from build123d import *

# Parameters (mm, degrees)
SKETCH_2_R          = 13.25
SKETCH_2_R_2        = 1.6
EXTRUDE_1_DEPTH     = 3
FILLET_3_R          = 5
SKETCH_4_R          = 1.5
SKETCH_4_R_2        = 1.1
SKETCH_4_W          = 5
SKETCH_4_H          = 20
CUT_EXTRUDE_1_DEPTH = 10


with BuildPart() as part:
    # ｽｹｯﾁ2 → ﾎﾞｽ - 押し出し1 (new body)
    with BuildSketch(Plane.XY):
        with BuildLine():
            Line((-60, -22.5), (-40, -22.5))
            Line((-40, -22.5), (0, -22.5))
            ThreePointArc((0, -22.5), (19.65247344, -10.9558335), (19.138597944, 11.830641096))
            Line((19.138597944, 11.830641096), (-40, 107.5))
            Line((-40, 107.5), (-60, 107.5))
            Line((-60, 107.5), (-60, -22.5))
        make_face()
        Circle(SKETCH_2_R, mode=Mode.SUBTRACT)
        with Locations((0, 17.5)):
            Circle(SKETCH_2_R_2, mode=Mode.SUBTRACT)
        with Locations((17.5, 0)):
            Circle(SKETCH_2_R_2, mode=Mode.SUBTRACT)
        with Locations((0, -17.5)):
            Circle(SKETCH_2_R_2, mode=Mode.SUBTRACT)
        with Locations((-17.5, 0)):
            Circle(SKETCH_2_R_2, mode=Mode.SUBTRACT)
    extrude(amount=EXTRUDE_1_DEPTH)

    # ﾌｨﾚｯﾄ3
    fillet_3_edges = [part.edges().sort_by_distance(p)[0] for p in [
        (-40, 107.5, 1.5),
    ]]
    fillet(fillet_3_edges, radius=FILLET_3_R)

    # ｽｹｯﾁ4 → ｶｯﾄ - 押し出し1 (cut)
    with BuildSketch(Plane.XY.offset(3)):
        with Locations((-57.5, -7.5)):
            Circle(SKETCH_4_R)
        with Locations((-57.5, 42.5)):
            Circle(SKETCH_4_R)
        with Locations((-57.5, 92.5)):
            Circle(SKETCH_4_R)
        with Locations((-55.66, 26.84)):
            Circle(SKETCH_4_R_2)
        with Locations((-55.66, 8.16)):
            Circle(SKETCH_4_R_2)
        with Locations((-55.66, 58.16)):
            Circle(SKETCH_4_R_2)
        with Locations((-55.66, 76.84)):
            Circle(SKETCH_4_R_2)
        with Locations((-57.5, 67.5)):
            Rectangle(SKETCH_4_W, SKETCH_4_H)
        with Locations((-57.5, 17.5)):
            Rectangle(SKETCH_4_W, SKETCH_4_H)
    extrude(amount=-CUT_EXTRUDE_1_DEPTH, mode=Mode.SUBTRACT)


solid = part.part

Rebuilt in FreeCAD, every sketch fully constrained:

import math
import FreeCAD as App
import Part
import Sketcher

V = App.Vector


def edges_at(feature, points):
    """Names of the edges that pass closest to the given points."""
    edges = feature.Shape.Edges
    near = lambda p: min(range(len(edges)), key=lambda i: edges[i].distToShape(Part.Vertex(*p))[0])
    return sorted({f"Edge{near(p) + 1}" for p in points})

doc = App.newDocument("Part")
body = doc.addObject("PartDesign::Body", "Body")

sketch1 = doc.addObject("Sketcher::SketchObject", "Sketch")
body.addObject(sketch1)
sketch1.AttachmentSupport = (doc.XY_Plane, [""])
sketch1.MapMode = "FlatFace"
sketch1.addGeometry([
    Part.LineSegment(V(-60, -22.5, 0), V(0, -22.5, 0)),
    Part.ArcOfCircle(Part.Circle(V(0, 0, 0), V(0, 0, 1), 22.5), math.radians(-90), math.radians(31.722537)),
    Part.LineSegment(V(19.138598, 11.830641, 0), V(-40, 107.5, 0)),
    Part.LineSegment(V(-40, 107.5, 0), V(-60, 107.5, 0)),
    Part.LineSegment(V(-60, 107.5, 0), V(-60, -22.5, 0)),
    Part.Circle(V(0, -17.5, 0), V(0, 0, 1), 1.6),
    Part.Circle(V(-17.5, 0, 0), V(0, 0, 1), 1.6),
    Part.Circle(V(0, 0, 0), V(0, 0, 1), 13.25),
    Part.Circle(V(17.5, 0, 0), V(0, 0, 1), 1.6),
    Part.Circle(V(0, 17.5, 0), V(0, 0, 1), 1.6),
], False)
sketch1.addConstraint([
    Sketcher.Constraint("Tangent", 0, 2, 1, 1),
    Sketcher.Constraint("Tangent", 1, 2, 2, 1),
    Sketcher.Constraint("Coincident", 2, 2, 3, 1),
    Sketcher.Constraint("Coincident", 3, 2, 4, 1),
    Sketcher.Constraint("Coincident", 4, 2, 0, 1),
    Sketcher.Constraint("Horizontal", 0),
    Sketcher.Constraint("Horizontal", 3),
    Sketcher.Constraint("Vertical", 4),
    Sketcher.Constraint("Coincident", 1, 3, -1, 1),
    Sketcher.Constraint("Coincident", 7, 3, -1, 1),
    Sketcher.Constraint("Equal", 5, 6),
    Sketcher.Constraint("Equal", 6, 8),
    Sketcher.Constraint("Equal", 8, 9),
    Sketcher.Constraint("Symmetric", 6, 3, 8, 3, -1, 1),
    Sketcher.Constraint("Symmetric", 5, 3, 9, 3, -1, 1),
    Sketcher.Constraint("PointOnObject", 5, 3, -2),
    Sketcher.Constraint("PointOnObject", 6, 3, -1),
    Sketcher.Constraint("Diameter", 5, 3.2),
    Sketcher.Constraint("Diameter", 7, 26.5),
    Sketcher.Constraint("Radius", 1, 22.5),
    Sketcher.Constraint("DistanceX", 0, 1, 0, 2, 60.0),
    Sketcher.Constraint("DistanceX", 3, 2, 3, 1, 20.0),
    Sketcher.Constraint("DistanceY", 4, 2, 4, 1, 130.0),
    Sketcher.Constraint("DistanceX", 6, 3, 8, 3, 35.0),
    Sketcher.Constraint("DistanceY", 5, 3, 9, 3, 35.0),
])
pad1 = doc.addObject("PartDesign::Pad", "Pad")
body.addObject(pad1)
pad1.Profile = sketch1
pad1.Length = 3
doc.recompute()

fillet = doc.addObject("PartDesign::Fillet", "Fillet")
body.addObject(fillet)
fillet.Base = (pad1, edges_at(pad1, [(-40, 107.5, 1.5)]))
fillet.Radius = 5

sketch2 = doc.addObject("Sketcher::SketchObject", "Sketch001")
body.addObject(sketch2)
sketch2.AttachmentSupport = (doc.XY_Plane, [""])
sketch2.MapMode = "FlatFace"
sketch2.AttachmentOffset = App.Placement(V(0, 0, 3), App.Rotation())
sketch2.addGeometry([
    Part.Circle(V(-57.5, -7.5, 0), V(0, 0, 1), 1.5),
    Part.Circle(V(-57.5, 42.5, 0), V(0, 0, 1), 1.5),
    Part.Circle(V(-57.5, 92.5, 0), V(0, 0, 1), 1.5),
    Part.ArcOfCircle(Part.Circle(V(-55.66, 26.84, 0), V(0, 0, 1), 1.1), math.radians(-53.130102), math.radians(143.130102)),
    Part.LineSegment(V(-56.54, 27.5, 0), V(-60, 27.5, 0)),
    Part.LineSegment(V(-60, 27.5, 0), V(-60, 7.5, 0)),
    Part.LineSegment(V(-60, 7.5, 0), V(-56.54, 7.5, 0)),
    Part.ArcOfCircle(Part.Circle(V(-55.66, 8.16, 0), V(0, 0, 1), 1.1), math.radians(-143.130102), math.radians(53.130102)),
    Part.LineSegment(V(-55, 9.04, 0), V(-55, 25.96, 0)),
    Part.ArcOfCircle(Part.Circle(V(-55.66, 58.16, 0), V(0, 0, 1), 1.1), math.radians(-143.130102), math.radians(53.130102)),
    Part.LineSegment(V(-55, 59.04, 0), V(-55, 75.96, 0)),
    Part.ArcOfCircle(Part.Circle(V(-55.66, 76.84, 0), V(0, 0, 1), 1.1), math.radians(-53.130102), math.radians(143.130102)),
    Part.LineSegment(V(-56.54, 77.5, 0), V(-60, 77.5, 0)),
    Part.LineSegment(V(-60, 77.5, 0), V(-60, 57.5, 0)),
    Part.LineSegment(V(-60, 57.5, 0), V(-56.54, 57.5, 0)),
], False)
sketch2.addConstraint([
    Sketcher.Constraint("Coincident", 3, 2, 4, 1),
    Sketcher.Constraint("Coincident", 4, 2, 5, 1),
    Sketcher.Constraint("Coincident", 5, 2, 6, 1),
    Sketcher.Constraint("Coincident", 6, 2, 7, 1),
    Sketcher.Constraint("Coincident", 7, 2, 8, 1),
    Sketcher.Constraint("Coincident", 8, 2, 3, 1),
    Sketcher.Constraint("Coincident", 9, 2, 10, 1),
    Sketcher.Constraint("Coincident", 10, 2, 11, 1),
    Sketcher.Constraint("Coincident", 11, 2, 12, 1),
    Sketcher.Constraint("Coincident", 12, 2, 13, 1),
    Sketcher.Constraint("Coincident", 13, 2, 14, 1),
    Sketcher.Constraint("Coincident", 14, 2, 9, 1),
    Sketcher.Constraint("Horizontal", 4),
    Sketcher.Constraint("Vertical", 5),
    Sketcher.Constraint("Horizontal", 6),
    Sketcher.Constraint("Vertical", 8),
    Sketcher.Constraint("Vertical", 10),
    Sketcher.Constraint("Horizontal", 12),
    Sketcher.Constraint("Vertical", 13),
    Sketcher.Constraint("Horizontal", 14),
    Sketcher.Constraint("Equal", 0, 1),
    Sketcher.Constraint("Equal", 1, 2),
    Sketcher.Constraint("Equal", 3, 7),
    Sketcher.Constraint("Equal", 7, 9),
    Sketcher.Constraint("Equal", 9, 11),
    Sketcher.Constraint("Vertical", 0, 3, 1, 3),
    Sketcher.Constraint("Vertical", 1, 3, 2, 3),
    Sketcher.Constraint("Vertical", 3, 3, 7, 3),
    Sketcher.Constraint("Vertical", 7, 3, 9, 3),
    Sketcher.Constraint("Vertical", 9, 3, 11, 3),
    Sketcher.Constraint("Vertical", 3, 2, 6, 2),
    Sketcher.Constraint("Vertical", 8, 2, 9, 2),
    Sketcher.Constraint("Vertical", 6, 2, 11, 2),
    Sketcher.Constraint("Vertical", 5, 2, 12, 2),
    Sketcher.Constraint("Vertical", 11, 2, 14, 2),
    Sketcher.Constraint("Equal", 8, 10),
    Sketcher.Constraint("Diameter", 0, 3.0),
    Sketcher.Constraint("Radius", 3, 1.1),
    Sketcher.Constraint("DistanceY", 5, 2, 5, 1, 20.0),
    Sketcher.Constraint("DistanceX", 4, 2, -1, 1, 60.0),
    Sketcher.Constraint("DistanceX", 7, 2, -1, 1, 55.0),
    Sketcher.Constraint("DistanceY", 0, 3, 1, 3, 50.0),
    Sketcher.Constraint("DistanceY", 1, 3, 2, 3, 50.0),
    Sketcher.Constraint("DistanceY", 7, 3, 9, 3, 50.0),
    Sketcher.Constraint("DistanceY", 3, 2, 1, 3, 15.0),
    Sketcher.Constraint("DistanceX", 4, 2, 4, 1, 3.46),
    Sketcher.Constraint("DistanceY", 8, 1, 8, 2, 16.92),
    Sketcher.Constraint("DistanceX", 0, 3, -1, 1, 57.5),
    Sketcher.Constraint("DistanceY", 0, 3, -1, 1, 7.5),
])
pocket1 = doc.addObject("PartDesign::Pocket", "Pocket")
body.addObject(pocket1)
pocket1.Profile = sketch2
pocket1.Length = 10

doc.recompute()
